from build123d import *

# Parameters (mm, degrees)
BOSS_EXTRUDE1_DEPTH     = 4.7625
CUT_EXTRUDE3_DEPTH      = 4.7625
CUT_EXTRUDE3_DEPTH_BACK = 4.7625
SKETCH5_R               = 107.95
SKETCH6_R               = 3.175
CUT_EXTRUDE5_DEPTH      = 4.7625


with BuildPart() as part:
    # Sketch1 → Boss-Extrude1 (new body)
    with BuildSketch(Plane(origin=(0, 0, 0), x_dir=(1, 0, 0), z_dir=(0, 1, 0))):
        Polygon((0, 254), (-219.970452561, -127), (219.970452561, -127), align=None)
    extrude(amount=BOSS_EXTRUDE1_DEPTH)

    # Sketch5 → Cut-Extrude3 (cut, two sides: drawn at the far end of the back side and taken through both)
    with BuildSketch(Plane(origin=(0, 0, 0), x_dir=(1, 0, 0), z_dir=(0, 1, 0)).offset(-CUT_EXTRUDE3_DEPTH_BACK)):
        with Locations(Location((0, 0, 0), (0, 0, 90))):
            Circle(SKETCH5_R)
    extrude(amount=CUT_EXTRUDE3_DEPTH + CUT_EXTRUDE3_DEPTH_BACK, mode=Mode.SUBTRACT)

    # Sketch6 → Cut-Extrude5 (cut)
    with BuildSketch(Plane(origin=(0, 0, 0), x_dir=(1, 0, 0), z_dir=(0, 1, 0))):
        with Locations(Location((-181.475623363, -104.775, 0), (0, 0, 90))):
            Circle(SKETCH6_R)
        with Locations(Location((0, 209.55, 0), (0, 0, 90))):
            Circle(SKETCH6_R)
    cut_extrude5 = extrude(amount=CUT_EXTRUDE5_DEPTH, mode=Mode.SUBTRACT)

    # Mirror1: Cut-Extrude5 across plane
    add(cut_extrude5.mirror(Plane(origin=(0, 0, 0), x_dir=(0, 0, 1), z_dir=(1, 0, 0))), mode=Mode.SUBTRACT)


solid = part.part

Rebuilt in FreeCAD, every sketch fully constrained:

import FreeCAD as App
import Part
import Sketcher
Q = App.Units.Quantity


def add_polygon(sketch, points):
    """Adds a closed chain of lines whose ends are joined by coincident constraints."""
    first, n = sketch.GeometryCount, len(points)
    for a, b in zip(points, points[1:] + points[:1]):
        sketch.addGeometry(Part.LineSegment(App.Vector(*a, 0), App.Vector(*b, 0)), False)
    for i in range(n):
        sketch.addConstraint(Sketcher.Constraint("Coincident", first + i, 2, first + (i + 1) % n, 1))

doc = App.newDocument("Part")
body = doc.addObject("PartDesign::Body", "Body")

sketch1 = body.newObject("Sketcher::SketchObject", "Sketch")
sketch1.AttachmentSupport = (doc.getObject("XZ_Plane"), [""])
sketch1.MapMode = "FlatFace"
add_polygon(sketch1, [(0, -254), (-220, 127), (220, 127)])
sketch1.addConstraint([
    Sketcher.Constraint("Horizontal", 1),
    Sketcher.Constraint("PointOnObject", 2, 2, -2),
    Sketcher.Constraint("Equal", 0, 2),
    Sketcher.Constraint("DistanceY", -1, 1, 0, 2, Q("5 in")),
    Sketcher.Constraint("DistanceY", 2, 2, -1, 1, Q("10 in")),
    Sketcher.Constraint("Angle", 0, Q("120 deg")),
])
pad1 = body.newObject("PartDesign::Pad", "Pad")
pad1.Profile = sketch1
pad1.Length = Q("0.1875 in")
pad1.Reversed = True

sketch2 = body.newObject("Sketcher::SketchObject", "Sketch001")
sketch2.AttachmentSupport = (doc.getObject("XZ_Plane"), [""])
sketch2.MapMode = "FlatFace"
sketch2.addGeometry(Part.Circle(App.Vector(0, 0, 0), App.Vector(0, 0, 1), 108), False)
sketch2.addConstraint([
    Sketcher.Constraint("Coincident", 0, 3, -1, 1),
    Sketcher.Constraint("Diameter", 0, Q("8.5 in")),
])
pocket1 = body.newObject("PartDesign::Pocket", "Pocket")
pocket1.Profile = sketch2
pocket1.Type = "ThroughAll"
pocket1.Midplane = True

sketch3 = body.newObject("Sketcher::SketchObject", "Sketch002")
sketch3.AttachmentSupport = (doc.getObject("XZ_Plane"), [""])
sketch3.MapMode = "FlatFace"
sketch3.addGeometry([
    Part.Circle(App.Vector(-181.5, 104.8, 0), App.Vector(0, 0, 1), 3.2),
    Part.Circle(App.Vector(0, -209.6, 0), App.Vector(0, 0, 1), 3.2),
], False)
sketch3.addConstraint([
    Sketcher.Constraint("Equal", 0, 1),
    Sketcher.Constraint("PointOnObject", 1, 3, -2),
    Sketcher.Constraint("Diameter", 0, Q("0.25 in")),
    Sketcher.Constraint("DistanceY", 1, 3, -1, 1, Q("8.25 in")),
    Sketcher.Constraint("DistanceY", -1, 1, 0, 3, Q("4.125 in")),
    Sketcher.Constraint("DistanceX", 0, 3, -1, 1, Q("181.475623 mm")),
])
pocket2 = body.newObject("PartDesign::Pocket", "Pocket001")
pocket2.Profile = sketch3
pocket2.Length = Q("0.1875 in")
doc.recompute()

mirrored = body.newObject("PartDesign::Mirrored", "Mirrored")
mirrored.Originals = [pocket2]
mirrored.MirrorPlane = (doc.getObject("YZ_Plane"), [""])
body.Tip = mirrored

doc.recompute()
